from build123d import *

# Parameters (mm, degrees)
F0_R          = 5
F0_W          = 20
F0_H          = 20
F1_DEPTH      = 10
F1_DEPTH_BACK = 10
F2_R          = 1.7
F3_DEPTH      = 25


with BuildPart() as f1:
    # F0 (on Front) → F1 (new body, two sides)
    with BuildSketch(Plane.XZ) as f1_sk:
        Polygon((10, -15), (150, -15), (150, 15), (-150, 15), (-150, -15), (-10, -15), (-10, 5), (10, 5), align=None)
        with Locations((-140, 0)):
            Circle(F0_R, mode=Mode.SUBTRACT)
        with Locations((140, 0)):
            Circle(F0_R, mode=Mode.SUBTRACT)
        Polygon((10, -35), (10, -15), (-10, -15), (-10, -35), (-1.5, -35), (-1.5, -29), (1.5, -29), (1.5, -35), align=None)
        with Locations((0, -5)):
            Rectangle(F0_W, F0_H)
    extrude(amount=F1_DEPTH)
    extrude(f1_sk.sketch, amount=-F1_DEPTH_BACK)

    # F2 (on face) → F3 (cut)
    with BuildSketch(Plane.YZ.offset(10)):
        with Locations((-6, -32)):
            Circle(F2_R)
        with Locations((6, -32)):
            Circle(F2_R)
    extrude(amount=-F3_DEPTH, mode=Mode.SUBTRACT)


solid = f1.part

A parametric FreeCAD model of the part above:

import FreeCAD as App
import Part
import Sketcher
from FreeCAD import Vector


def add_polygon(sketch, points):
    """Adds a closed chain of lines whose ends are joined by coincident constraints."""
    first, n = sketch.GeometryCount, len(points)
    for a, b in zip(points, points[1:] + points[:1]):
        sketch.addGeometry(Part.LineSegment(App.Vector(*a, 0), App.Vector(*b, 0)), False)
    for i in range(n):
        sketch.addConstraint(Sketcher.Constraint("Coincident", first + i, 2, first + (i + 1) % n, 1))

doc = App.newDocument("Part")
body = doc.addObject("PartDesign::Body", "Body")

sketch1 = body.newObject("Sketcher::SketchObject", "Sketch")
sketch1.AttachmentSupport = (doc.getObject("XZ_Plane"), [""])
sketch1.MapMode = "FlatFace"
add_polygon(sketch1, [(10, -15), (150, -15), (150, 15), (-150, 15), (-150, -15), (-10, -15), (-10, -35), (-1.5, -35), (-1.5, -29), (1.5, -29), (1.5, -35), (10, -35)])
sketch1.addGeometry(Part.Circle(Vector(-140, 0, 0), Vector(0, 0, 1), 5), False)
sketch1.addGeometry(Part.Circle(Vector(140, 0, 0), Vector(0, 0, 1), 5), False)
sketch1.addConstraint([
    Sketcher.Constraint("Horizontal", 0),
    Sketcher.Constraint("Vertical", 1),
    Sketcher.Constraint("Horizontal", 2),
    Sketcher.Constraint("Vertical", 3),
    Sketcher.Constraint("Horizontal", 4),
    Sketcher.Constraint("Vertical", 5),
    Sketcher.Constraint("Horizontal", 6),
    Sketcher.Constraint("Vertical", 7),
    Sketcher.Constraint("Horizontal", 8),
    Sketcher.Constraint("Vertical", 9),
    Sketcher.Constraint("Horizontal", 10),
    Sketcher.Constraint("Vertical", 11),
    Sketcher.Constraint("Equal", 12, 13),
    Sketcher.Constraint("Symmetric", 12, 3, 13, 3, -1, 1),
    Sketcher.Constraint("Symmetric", 0, 2, 2, 2, -1, 1),
    Sketcher.Constraint("Symmetric", 6, 2, 9, 2, -2),
    Sketcher.Constraint("Symmetric", 4, 2, 11, 2, -2),
    Sketcher.Constraint("PointOnObject", 12, 3, -1),
    Sketcher.Constraint("Diameter", 12, 10.0),
    Sketcher.Constraint("DistanceX", 0, 1, 0, 2, 140.0),
    Sketcher.Constraint("DistanceX", 2, 2, 2, 1, 300.0),
    Sketcher.Constraint("DistanceX", 8, 1, 8, 2, 3.0),
    Sketcher.Constraint("DistanceY", 1, 1, 1, 2, 30.0),
    Sketcher.Constraint("DistanceY", 5, 2, 5, 1, 20.0),
    Sketcher.Constraint("DistanceY", 7, 1, 7, 2, 6.0),
    Sketcher.Constraint("DistanceX", 12, 3, -1, 1, 140.0),
])
pad1 = body.newObject("PartDesign::Pad", "Pad")
pad1.Profile = sketch1
pad1.Type = "TwoLengths"
pad1.Length = 10
pad1.Length2 = 10

sketch2 = body.newObject("Sketcher::SketchObject", "Sketch001")
sketch2.AttachmentSupport = (doc.getObject("YZ_Plane"), [""])
sketch2.MapMode = "FlatFace"
sketch2.AttachmentOffset = App.Placement(Vector(0, 0, 10), App.Rotation())
sketch2.addGeometry([
    Part.Circle(Vector(-6, -32, 0), Vector(0, 0, 1), 1.7),
    Part.Circle(Vector(6, -32, 0), Vector(0, 0, 1), 1.7),
], False)
sketch2.addConstraint([
    Sketcher.Constraint("Equal", 0, 1),
    Sketcher.Constraint("Symmetric", 0, 3, 1, 3, -2),
    Sketcher.Constraint("Diameter", 0, 3.4),
    Sketcher.Constraint("DistanceX", 0, 3, -1, 1, 6.0),
    Sketcher.Constraint("DistanceY", 0, 3, -1, 1, 32.0),
])
pocket1 = body.newObject("PartDesign::Pocket", "Pocket")
pocket1.Profile = sketch2
pocket1.Length = 25

doc.recompute()
